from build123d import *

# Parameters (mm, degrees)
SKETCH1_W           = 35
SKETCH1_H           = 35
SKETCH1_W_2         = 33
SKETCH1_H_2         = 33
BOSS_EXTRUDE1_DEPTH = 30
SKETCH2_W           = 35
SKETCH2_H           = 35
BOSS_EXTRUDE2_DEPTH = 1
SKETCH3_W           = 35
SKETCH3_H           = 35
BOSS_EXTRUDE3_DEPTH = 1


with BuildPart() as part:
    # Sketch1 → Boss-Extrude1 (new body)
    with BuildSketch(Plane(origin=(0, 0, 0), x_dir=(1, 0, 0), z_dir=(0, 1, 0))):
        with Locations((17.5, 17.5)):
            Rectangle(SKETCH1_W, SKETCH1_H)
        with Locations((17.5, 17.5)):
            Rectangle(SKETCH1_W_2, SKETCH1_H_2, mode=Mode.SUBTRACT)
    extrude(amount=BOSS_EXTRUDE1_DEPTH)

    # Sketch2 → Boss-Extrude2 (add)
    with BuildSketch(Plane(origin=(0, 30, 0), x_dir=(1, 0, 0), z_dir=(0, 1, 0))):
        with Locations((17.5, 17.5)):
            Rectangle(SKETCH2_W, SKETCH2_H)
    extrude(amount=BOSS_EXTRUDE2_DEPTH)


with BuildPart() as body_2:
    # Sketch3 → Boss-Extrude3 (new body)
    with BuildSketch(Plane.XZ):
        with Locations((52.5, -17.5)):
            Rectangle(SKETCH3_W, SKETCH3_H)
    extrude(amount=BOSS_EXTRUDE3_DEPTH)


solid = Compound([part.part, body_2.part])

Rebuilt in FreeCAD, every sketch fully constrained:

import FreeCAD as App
import Part
import Sketcher

V = App.Vector
Q = App.Units.Quantity

doc = App.newDocument("Part")
body = doc.addObject("PartDesign::Body", "Body")

# Sketch on XZ plane
sketch1 = body.newObject("Sketcher::SketchObject", "Sketch")
sketch1.AttachmentSupport = (doc.getObject("XZ_Plane"), [""])
sketch1.MapMode = "FlatFace"
sketch1.addGeometry(Part.LineSegment(V(0, -35, 0), V(0, 0, 0)), False)
sketch1.addGeometry(Part.LineSegment(V(0, 0, 0), V(35, 0, 0)), False)
sketch1.addGeometry(Part.LineSegment(V(35, 0, 0), V(35, -35, 0)), False)
sketch1.addGeometry(Part.LineSegment(V(35, -35, 0), V(0, -35, 0)), False)
sketch1.addGeometry(Part.LineSegment(V(34, -1, 0), V(1, -1, 0)), False)
sketch1.addGeometry(Part.LineSegment(V(1, -1, 0), V(1, -34, 0)), False)
sketch1.addGeometry(Part.LineSegment(V(1, -34, 0), V(34, -34, 0)), False)
sketch1.addGeometry(Part.LineSegment(V(34, -34, 0), V(34, -1, 0)), False)
sketch1.addConstraint(Sketcher.Constraint("Coincident", 0, 2, 1, 1))
sketch1.addConstraint(Sketcher.Constraint("Coincident", 1, 2, 2, 1))
sketch1.addConstraint(Sketcher.Constraint("Coincident", 2, 2, 3, 1))
sketch1.addConstraint(Sketcher.Constraint("Coincident", 3, 2, 0, 1))
sketch1.addConstraint(Sketcher.Constraint("Coincident", 4, 2, 5, 1))
sketch1.addConstraint(Sketcher.Constraint("Coincident", 5, 2, 6, 1))
sketch1.addConstraint(Sketcher.Constraint("Coincident", 6, 2, 7, 1))
sketch1.addConstraint(Sketcher.Constraint("Coincident", 7, 2, 4, 1))
sketch1.addConstraint(Sketcher.Constraint("Vertical", 0))
sketch1.addConstraint(Sketcher.Constraint("Horizontal", 1))
sketch1.addConstraint(Sketcher.Constraint("Vertical", 2))
sketch1.addConstraint(Sketcher.Constraint("Horizontal", 3))
sketch1.addConstraint(Sketcher.Constraint("Horizontal", 4))
sketch1.addConstraint(Sketcher.Constraint("Vertical", 5))
sketch1.addConstraint(Sketcher.Constraint("Horizontal", 6))
sketch1.addConstraint(Sketcher.Constraint("Vertical", 7))
sketch1.addConstraint(Sketcher.Constraint("Coincident", 0, 2, -1, 1))
sketch1.addConstraint(Sketcher.Constraint("Equal", 3, 0))
sketch1.addConstraint(Sketcher.Constraint("Equal", 6, 5))
sketch1.addConstraint(Sketcher.Constraint("DistanceX", 1, 1, 1, 2, Q("35 mm")))
sketch1.addConstraint(Sketcher.Constraint("DistanceX", 4, 2, 4, 1, Q("33 mm")))
sketch1.addConstraint(Sketcher.Constraint("DistanceX", -1, 1, 4, 2, Q("1 mm")))
sketch1.addConstraint(Sketcher.Constraint("DistanceY", 4, 2, -1, 1, Q("1 mm")))
pad1 = body.newObject("PartDesign::Pad", "Pad")
pad1.Profile = sketch1
pad1.Length = 30
pad1.Reversed = True

# Sketch on XZ plane
sketch2 = body.newObject("Sketcher::SketchObject", "Sketch001")
sketch2.AttachmentSupport = (doc.getObject("XZ_Plane"), [""])
sketch2.MapMode = "FlatFace"
sketch2.AttachmentOffset = App.Placement(V(0, 0, -30), App.Rotation())
sketch2.addGeometry(Part.LineSegment(V(0, -35, 0), V(0, 0, 0)), False)
sketch2.addGeometry(Part.LineSegment(V(0, 0, 0), V(35, 0, 0)), False)
sketch2.addGeometry(Part.LineSegment(V(35, 0, 0), V(35, -35, 0)), False)
sketch2.addGeometry(Part.LineSegment(V(35, -35, 0), V(0, -35, 0)), False)
sketch2.addConstraint(Sketcher.Constraint("Coincident", 0, 2, 1, 1))
sketch2.addConstraint(Sketcher.Constraint("Coincident", 1, 2, 2, 1))
sketch2.addConstraint(Sketcher.Constraint("Coincident", 2, 2, 3, 1))
sketch2.addConstraint(Sketcher.Constraint("Coincident", 3, 2, 0, 1))
sketch2.addConstraint(Sketcher.Constraint("Vertical", 0))
sketch2.addConstraint(Sketcher.Constraint("Horizontal", 1))
sketch2.addConstraint(Sketcher.Constraint("Vertical", 2))
sketch2.addConstraint(Sketcher.Constraint("Horizontal", 3))
sketch2.addConstraint(Sketcher.Constraint("Coincident", 0, 2, -1, 1))
sketch2.addConstraint(Sketcher.Constraint("Equal", 3, 0))
sketch2.addConstraint(Sketcher.Constraint("DistanceX", 1, 1, 1, 2, Q("35 mm")))
pad2 = body.newObject("PartDesign::Pad", "Pad001")
pad2.Profile = sketch2
pad2.Length = 1
pad2.Reversed = True
body2 = doc.addObject("PartDesign::Body", "Body001")

# Sketch on XZ plane
sketch3 = body2.newObject("Sketcher::SketchObject", "Sketch002")
sketch3.AttachmentSupport = (doc.getObject("XZ_Plane001"), [""])
sketch3.MapMode = "FlatFace"
sketch3.addGeometry(Part.LineSegment(V(35, 0, 0), V(35, -35, 0)), False)
sketch3.addGeometry(Part.LineSegment(V(35, -35, 0), V(70, -35, 0)), False)
sketch3.addGeometry(Part.LineSegment(V(70, -35, 0), V(70, 0, 0)), False)
sketch3.addGeometry(Part.LineSegment(V(70, 0, 0), V(35, 0, 0)), False)
sketch3.addConstraint(Sketcher.Constraint("Coincident", 0, 2, 1, 1))
sketch3.addConstraint(Sketcher.Constraint("Coincident", 1, 2, 2, 1))
sketch3.addConstraint(Sketcher.Constraint("Coincident", 2, 2, 3, 1))
sketch3.addConstraint(Sketcher.Constraint("Coincident", 3, 2, 0, 1))
sketch3.addConstraint(Sketcher.Constraint("Vertical", 0))
sketch3.addConstraint(Sketcher.Constraint("Horizontal", 1))
sketch3.addConstraint(Sketcher.Constraint("Vertical", 2))
sketch3.addConstraint(Sketcher.Constraint("Horizontal", 3))
sketch3.addConstraint(Sketcher.Constraint("PointOnObject", 2, 2, -1))
sketch3.addConstraint(Sketcher.Constraint("Equal", 3, 0))
sketch3.addConstraint(Sketcher.Constraint("DistanceX", 1, 1, 1, 2, Q("35 mm")))
sketch3.addConstraint(Sketcher.Constraint("DistanceX", -1, 1, 0, 2, Q("35 mm")))
pad3 = body2.newObject("PartDesign::Pad", "Pad002")
pad3.Profile = sketch3
pad3.Length = 1

doc.recompute()
